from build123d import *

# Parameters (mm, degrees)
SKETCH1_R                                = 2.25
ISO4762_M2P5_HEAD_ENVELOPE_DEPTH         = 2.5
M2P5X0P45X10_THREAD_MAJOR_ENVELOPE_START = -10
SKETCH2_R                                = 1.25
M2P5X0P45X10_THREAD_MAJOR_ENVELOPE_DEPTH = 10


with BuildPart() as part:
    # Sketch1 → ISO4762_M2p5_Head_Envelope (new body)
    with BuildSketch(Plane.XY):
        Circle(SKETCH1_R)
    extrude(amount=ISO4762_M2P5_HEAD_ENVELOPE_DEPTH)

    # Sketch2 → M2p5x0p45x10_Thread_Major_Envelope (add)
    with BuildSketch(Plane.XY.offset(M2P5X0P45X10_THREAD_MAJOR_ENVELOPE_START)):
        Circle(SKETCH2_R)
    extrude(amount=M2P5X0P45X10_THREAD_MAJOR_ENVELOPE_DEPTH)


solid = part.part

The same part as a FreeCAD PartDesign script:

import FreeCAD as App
import Part
import Sketcher
from FreeCAD import Vector
Q = App.Units.Quantity

doc = App.newDocument("Part")
params = doc.addObject("Spreadsheet::Sheet", "Params")
for row, (alias, value) in enumerate([
    ("sketch1_diameter", "4.5 mm"),
    ("pad1_length", "2.5 mm"),
    ("sketch2_diameter", "2.5 mm"),
    ("pad2_length", "10 mm"),
], start=1):
    params.set(f"A{row}", alias)
    params.set(f"B{row}", "=" + value)
    params.setAlias(f"B{row}", alias)

body = doc.addObject("PartDesign::Body", "Body")

# Sketch on XY plane
sketch1 = doc.addObject("Sketcher::SketchObject", "Sketch")
body.addObject(sketch1)
sketch1.AttachmentSupport = (doc.XY_Plane, [""])
sketch1.MapMode = "FlatFace"
sketch1.addGeometry(Part.Circle(Vector(0, 0, 0), Vector(0, 0, 1), 2.2), False)
sketch1.addConstraint([
    Sketcher.Constraint("Coincident", 0, 3, -1, 1),
    Sketcher.Constraint("Diameter", 0, Q("4.5 mm")),
])
sketch1.setExpression("Constraints[1]", "Params.sketch1_diameter")
pad1 = doc.addObject("PartDesign::Pad", "Pad")
body.addObject(pad1)
pad1.Profile = sketch1
pad1.setExpression("Length", "Params.pad1_length")

# Sketch on XY plane
sketch2 = doc.addObject("Sketcher::SketchObject", "Sketch001")
body.addObject(sketch2)
sketch2.AttachmentSupport = (doc.XY_Plane, [""])
sketch2.MapMode = "FlatFace"
sketch2.AttachmentOffset = App.Placement(Vector(0, 0, -10), App.Rotation())
sketch2.addGeometry(Part.Circle(Vector(0, 0, 0), Vector(0, 0, 1), 1.2), False)
sketch2.addConstraint([
    Sketcher.Constraint("Coincident", 0, 3, -1, 1),
    Sketcher.Constraint("Diameter", 0, Q("2.5 mm")),
])
sketch2.setExpression("Constraints[1]", "Params.sketch2_diameter")
pad2 = doc.addObject("PartDesign::Pad", "Pad001")
body.addObject(pad2)
pad2.Profile = sketch2
pad2.setExpression("Length", "Params.pad2_length")

doc.recompute()
